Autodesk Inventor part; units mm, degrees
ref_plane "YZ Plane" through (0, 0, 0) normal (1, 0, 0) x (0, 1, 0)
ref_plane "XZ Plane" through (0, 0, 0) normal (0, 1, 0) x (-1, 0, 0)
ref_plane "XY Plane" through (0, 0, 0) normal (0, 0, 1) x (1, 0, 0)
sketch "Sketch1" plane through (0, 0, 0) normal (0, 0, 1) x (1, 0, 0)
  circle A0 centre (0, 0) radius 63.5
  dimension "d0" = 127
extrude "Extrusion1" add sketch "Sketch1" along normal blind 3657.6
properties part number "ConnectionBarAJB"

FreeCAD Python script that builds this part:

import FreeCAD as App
import Part
import Sketcher
Q = App.Units.Quantity

doc = App.newDocument("Part")
body = doc.addObject("PartDesign::Body", "Body")

# Sketch on XY plane
sketch1 = doc.addObject("Sketcher::SketchObject", "Sketch")
body.addObject(sketch1)
sketch1.AttachmentSupport = (doc.XY_Plane, [""])
sketch1.MapMode = "FlatFace"
sketch1.addGeometry(Part.Circle(App.Vector(0, 0, 0), App.Vector(0, 0, 1), 64), False)
sketch1.addConstraint([
    Sketcher.Constraint("Coincident", 0, 3, -1, 1),
    Sketcher.Constraint("Diameter", 0, Q("5 in")),
])
pad1 = doc.addObject("PartDesign::Pad", "Pad")
body.addObject(pad1)
pad1.Profile = sketch1
pad1.Length = Q("144 in")

doc.recompute()
